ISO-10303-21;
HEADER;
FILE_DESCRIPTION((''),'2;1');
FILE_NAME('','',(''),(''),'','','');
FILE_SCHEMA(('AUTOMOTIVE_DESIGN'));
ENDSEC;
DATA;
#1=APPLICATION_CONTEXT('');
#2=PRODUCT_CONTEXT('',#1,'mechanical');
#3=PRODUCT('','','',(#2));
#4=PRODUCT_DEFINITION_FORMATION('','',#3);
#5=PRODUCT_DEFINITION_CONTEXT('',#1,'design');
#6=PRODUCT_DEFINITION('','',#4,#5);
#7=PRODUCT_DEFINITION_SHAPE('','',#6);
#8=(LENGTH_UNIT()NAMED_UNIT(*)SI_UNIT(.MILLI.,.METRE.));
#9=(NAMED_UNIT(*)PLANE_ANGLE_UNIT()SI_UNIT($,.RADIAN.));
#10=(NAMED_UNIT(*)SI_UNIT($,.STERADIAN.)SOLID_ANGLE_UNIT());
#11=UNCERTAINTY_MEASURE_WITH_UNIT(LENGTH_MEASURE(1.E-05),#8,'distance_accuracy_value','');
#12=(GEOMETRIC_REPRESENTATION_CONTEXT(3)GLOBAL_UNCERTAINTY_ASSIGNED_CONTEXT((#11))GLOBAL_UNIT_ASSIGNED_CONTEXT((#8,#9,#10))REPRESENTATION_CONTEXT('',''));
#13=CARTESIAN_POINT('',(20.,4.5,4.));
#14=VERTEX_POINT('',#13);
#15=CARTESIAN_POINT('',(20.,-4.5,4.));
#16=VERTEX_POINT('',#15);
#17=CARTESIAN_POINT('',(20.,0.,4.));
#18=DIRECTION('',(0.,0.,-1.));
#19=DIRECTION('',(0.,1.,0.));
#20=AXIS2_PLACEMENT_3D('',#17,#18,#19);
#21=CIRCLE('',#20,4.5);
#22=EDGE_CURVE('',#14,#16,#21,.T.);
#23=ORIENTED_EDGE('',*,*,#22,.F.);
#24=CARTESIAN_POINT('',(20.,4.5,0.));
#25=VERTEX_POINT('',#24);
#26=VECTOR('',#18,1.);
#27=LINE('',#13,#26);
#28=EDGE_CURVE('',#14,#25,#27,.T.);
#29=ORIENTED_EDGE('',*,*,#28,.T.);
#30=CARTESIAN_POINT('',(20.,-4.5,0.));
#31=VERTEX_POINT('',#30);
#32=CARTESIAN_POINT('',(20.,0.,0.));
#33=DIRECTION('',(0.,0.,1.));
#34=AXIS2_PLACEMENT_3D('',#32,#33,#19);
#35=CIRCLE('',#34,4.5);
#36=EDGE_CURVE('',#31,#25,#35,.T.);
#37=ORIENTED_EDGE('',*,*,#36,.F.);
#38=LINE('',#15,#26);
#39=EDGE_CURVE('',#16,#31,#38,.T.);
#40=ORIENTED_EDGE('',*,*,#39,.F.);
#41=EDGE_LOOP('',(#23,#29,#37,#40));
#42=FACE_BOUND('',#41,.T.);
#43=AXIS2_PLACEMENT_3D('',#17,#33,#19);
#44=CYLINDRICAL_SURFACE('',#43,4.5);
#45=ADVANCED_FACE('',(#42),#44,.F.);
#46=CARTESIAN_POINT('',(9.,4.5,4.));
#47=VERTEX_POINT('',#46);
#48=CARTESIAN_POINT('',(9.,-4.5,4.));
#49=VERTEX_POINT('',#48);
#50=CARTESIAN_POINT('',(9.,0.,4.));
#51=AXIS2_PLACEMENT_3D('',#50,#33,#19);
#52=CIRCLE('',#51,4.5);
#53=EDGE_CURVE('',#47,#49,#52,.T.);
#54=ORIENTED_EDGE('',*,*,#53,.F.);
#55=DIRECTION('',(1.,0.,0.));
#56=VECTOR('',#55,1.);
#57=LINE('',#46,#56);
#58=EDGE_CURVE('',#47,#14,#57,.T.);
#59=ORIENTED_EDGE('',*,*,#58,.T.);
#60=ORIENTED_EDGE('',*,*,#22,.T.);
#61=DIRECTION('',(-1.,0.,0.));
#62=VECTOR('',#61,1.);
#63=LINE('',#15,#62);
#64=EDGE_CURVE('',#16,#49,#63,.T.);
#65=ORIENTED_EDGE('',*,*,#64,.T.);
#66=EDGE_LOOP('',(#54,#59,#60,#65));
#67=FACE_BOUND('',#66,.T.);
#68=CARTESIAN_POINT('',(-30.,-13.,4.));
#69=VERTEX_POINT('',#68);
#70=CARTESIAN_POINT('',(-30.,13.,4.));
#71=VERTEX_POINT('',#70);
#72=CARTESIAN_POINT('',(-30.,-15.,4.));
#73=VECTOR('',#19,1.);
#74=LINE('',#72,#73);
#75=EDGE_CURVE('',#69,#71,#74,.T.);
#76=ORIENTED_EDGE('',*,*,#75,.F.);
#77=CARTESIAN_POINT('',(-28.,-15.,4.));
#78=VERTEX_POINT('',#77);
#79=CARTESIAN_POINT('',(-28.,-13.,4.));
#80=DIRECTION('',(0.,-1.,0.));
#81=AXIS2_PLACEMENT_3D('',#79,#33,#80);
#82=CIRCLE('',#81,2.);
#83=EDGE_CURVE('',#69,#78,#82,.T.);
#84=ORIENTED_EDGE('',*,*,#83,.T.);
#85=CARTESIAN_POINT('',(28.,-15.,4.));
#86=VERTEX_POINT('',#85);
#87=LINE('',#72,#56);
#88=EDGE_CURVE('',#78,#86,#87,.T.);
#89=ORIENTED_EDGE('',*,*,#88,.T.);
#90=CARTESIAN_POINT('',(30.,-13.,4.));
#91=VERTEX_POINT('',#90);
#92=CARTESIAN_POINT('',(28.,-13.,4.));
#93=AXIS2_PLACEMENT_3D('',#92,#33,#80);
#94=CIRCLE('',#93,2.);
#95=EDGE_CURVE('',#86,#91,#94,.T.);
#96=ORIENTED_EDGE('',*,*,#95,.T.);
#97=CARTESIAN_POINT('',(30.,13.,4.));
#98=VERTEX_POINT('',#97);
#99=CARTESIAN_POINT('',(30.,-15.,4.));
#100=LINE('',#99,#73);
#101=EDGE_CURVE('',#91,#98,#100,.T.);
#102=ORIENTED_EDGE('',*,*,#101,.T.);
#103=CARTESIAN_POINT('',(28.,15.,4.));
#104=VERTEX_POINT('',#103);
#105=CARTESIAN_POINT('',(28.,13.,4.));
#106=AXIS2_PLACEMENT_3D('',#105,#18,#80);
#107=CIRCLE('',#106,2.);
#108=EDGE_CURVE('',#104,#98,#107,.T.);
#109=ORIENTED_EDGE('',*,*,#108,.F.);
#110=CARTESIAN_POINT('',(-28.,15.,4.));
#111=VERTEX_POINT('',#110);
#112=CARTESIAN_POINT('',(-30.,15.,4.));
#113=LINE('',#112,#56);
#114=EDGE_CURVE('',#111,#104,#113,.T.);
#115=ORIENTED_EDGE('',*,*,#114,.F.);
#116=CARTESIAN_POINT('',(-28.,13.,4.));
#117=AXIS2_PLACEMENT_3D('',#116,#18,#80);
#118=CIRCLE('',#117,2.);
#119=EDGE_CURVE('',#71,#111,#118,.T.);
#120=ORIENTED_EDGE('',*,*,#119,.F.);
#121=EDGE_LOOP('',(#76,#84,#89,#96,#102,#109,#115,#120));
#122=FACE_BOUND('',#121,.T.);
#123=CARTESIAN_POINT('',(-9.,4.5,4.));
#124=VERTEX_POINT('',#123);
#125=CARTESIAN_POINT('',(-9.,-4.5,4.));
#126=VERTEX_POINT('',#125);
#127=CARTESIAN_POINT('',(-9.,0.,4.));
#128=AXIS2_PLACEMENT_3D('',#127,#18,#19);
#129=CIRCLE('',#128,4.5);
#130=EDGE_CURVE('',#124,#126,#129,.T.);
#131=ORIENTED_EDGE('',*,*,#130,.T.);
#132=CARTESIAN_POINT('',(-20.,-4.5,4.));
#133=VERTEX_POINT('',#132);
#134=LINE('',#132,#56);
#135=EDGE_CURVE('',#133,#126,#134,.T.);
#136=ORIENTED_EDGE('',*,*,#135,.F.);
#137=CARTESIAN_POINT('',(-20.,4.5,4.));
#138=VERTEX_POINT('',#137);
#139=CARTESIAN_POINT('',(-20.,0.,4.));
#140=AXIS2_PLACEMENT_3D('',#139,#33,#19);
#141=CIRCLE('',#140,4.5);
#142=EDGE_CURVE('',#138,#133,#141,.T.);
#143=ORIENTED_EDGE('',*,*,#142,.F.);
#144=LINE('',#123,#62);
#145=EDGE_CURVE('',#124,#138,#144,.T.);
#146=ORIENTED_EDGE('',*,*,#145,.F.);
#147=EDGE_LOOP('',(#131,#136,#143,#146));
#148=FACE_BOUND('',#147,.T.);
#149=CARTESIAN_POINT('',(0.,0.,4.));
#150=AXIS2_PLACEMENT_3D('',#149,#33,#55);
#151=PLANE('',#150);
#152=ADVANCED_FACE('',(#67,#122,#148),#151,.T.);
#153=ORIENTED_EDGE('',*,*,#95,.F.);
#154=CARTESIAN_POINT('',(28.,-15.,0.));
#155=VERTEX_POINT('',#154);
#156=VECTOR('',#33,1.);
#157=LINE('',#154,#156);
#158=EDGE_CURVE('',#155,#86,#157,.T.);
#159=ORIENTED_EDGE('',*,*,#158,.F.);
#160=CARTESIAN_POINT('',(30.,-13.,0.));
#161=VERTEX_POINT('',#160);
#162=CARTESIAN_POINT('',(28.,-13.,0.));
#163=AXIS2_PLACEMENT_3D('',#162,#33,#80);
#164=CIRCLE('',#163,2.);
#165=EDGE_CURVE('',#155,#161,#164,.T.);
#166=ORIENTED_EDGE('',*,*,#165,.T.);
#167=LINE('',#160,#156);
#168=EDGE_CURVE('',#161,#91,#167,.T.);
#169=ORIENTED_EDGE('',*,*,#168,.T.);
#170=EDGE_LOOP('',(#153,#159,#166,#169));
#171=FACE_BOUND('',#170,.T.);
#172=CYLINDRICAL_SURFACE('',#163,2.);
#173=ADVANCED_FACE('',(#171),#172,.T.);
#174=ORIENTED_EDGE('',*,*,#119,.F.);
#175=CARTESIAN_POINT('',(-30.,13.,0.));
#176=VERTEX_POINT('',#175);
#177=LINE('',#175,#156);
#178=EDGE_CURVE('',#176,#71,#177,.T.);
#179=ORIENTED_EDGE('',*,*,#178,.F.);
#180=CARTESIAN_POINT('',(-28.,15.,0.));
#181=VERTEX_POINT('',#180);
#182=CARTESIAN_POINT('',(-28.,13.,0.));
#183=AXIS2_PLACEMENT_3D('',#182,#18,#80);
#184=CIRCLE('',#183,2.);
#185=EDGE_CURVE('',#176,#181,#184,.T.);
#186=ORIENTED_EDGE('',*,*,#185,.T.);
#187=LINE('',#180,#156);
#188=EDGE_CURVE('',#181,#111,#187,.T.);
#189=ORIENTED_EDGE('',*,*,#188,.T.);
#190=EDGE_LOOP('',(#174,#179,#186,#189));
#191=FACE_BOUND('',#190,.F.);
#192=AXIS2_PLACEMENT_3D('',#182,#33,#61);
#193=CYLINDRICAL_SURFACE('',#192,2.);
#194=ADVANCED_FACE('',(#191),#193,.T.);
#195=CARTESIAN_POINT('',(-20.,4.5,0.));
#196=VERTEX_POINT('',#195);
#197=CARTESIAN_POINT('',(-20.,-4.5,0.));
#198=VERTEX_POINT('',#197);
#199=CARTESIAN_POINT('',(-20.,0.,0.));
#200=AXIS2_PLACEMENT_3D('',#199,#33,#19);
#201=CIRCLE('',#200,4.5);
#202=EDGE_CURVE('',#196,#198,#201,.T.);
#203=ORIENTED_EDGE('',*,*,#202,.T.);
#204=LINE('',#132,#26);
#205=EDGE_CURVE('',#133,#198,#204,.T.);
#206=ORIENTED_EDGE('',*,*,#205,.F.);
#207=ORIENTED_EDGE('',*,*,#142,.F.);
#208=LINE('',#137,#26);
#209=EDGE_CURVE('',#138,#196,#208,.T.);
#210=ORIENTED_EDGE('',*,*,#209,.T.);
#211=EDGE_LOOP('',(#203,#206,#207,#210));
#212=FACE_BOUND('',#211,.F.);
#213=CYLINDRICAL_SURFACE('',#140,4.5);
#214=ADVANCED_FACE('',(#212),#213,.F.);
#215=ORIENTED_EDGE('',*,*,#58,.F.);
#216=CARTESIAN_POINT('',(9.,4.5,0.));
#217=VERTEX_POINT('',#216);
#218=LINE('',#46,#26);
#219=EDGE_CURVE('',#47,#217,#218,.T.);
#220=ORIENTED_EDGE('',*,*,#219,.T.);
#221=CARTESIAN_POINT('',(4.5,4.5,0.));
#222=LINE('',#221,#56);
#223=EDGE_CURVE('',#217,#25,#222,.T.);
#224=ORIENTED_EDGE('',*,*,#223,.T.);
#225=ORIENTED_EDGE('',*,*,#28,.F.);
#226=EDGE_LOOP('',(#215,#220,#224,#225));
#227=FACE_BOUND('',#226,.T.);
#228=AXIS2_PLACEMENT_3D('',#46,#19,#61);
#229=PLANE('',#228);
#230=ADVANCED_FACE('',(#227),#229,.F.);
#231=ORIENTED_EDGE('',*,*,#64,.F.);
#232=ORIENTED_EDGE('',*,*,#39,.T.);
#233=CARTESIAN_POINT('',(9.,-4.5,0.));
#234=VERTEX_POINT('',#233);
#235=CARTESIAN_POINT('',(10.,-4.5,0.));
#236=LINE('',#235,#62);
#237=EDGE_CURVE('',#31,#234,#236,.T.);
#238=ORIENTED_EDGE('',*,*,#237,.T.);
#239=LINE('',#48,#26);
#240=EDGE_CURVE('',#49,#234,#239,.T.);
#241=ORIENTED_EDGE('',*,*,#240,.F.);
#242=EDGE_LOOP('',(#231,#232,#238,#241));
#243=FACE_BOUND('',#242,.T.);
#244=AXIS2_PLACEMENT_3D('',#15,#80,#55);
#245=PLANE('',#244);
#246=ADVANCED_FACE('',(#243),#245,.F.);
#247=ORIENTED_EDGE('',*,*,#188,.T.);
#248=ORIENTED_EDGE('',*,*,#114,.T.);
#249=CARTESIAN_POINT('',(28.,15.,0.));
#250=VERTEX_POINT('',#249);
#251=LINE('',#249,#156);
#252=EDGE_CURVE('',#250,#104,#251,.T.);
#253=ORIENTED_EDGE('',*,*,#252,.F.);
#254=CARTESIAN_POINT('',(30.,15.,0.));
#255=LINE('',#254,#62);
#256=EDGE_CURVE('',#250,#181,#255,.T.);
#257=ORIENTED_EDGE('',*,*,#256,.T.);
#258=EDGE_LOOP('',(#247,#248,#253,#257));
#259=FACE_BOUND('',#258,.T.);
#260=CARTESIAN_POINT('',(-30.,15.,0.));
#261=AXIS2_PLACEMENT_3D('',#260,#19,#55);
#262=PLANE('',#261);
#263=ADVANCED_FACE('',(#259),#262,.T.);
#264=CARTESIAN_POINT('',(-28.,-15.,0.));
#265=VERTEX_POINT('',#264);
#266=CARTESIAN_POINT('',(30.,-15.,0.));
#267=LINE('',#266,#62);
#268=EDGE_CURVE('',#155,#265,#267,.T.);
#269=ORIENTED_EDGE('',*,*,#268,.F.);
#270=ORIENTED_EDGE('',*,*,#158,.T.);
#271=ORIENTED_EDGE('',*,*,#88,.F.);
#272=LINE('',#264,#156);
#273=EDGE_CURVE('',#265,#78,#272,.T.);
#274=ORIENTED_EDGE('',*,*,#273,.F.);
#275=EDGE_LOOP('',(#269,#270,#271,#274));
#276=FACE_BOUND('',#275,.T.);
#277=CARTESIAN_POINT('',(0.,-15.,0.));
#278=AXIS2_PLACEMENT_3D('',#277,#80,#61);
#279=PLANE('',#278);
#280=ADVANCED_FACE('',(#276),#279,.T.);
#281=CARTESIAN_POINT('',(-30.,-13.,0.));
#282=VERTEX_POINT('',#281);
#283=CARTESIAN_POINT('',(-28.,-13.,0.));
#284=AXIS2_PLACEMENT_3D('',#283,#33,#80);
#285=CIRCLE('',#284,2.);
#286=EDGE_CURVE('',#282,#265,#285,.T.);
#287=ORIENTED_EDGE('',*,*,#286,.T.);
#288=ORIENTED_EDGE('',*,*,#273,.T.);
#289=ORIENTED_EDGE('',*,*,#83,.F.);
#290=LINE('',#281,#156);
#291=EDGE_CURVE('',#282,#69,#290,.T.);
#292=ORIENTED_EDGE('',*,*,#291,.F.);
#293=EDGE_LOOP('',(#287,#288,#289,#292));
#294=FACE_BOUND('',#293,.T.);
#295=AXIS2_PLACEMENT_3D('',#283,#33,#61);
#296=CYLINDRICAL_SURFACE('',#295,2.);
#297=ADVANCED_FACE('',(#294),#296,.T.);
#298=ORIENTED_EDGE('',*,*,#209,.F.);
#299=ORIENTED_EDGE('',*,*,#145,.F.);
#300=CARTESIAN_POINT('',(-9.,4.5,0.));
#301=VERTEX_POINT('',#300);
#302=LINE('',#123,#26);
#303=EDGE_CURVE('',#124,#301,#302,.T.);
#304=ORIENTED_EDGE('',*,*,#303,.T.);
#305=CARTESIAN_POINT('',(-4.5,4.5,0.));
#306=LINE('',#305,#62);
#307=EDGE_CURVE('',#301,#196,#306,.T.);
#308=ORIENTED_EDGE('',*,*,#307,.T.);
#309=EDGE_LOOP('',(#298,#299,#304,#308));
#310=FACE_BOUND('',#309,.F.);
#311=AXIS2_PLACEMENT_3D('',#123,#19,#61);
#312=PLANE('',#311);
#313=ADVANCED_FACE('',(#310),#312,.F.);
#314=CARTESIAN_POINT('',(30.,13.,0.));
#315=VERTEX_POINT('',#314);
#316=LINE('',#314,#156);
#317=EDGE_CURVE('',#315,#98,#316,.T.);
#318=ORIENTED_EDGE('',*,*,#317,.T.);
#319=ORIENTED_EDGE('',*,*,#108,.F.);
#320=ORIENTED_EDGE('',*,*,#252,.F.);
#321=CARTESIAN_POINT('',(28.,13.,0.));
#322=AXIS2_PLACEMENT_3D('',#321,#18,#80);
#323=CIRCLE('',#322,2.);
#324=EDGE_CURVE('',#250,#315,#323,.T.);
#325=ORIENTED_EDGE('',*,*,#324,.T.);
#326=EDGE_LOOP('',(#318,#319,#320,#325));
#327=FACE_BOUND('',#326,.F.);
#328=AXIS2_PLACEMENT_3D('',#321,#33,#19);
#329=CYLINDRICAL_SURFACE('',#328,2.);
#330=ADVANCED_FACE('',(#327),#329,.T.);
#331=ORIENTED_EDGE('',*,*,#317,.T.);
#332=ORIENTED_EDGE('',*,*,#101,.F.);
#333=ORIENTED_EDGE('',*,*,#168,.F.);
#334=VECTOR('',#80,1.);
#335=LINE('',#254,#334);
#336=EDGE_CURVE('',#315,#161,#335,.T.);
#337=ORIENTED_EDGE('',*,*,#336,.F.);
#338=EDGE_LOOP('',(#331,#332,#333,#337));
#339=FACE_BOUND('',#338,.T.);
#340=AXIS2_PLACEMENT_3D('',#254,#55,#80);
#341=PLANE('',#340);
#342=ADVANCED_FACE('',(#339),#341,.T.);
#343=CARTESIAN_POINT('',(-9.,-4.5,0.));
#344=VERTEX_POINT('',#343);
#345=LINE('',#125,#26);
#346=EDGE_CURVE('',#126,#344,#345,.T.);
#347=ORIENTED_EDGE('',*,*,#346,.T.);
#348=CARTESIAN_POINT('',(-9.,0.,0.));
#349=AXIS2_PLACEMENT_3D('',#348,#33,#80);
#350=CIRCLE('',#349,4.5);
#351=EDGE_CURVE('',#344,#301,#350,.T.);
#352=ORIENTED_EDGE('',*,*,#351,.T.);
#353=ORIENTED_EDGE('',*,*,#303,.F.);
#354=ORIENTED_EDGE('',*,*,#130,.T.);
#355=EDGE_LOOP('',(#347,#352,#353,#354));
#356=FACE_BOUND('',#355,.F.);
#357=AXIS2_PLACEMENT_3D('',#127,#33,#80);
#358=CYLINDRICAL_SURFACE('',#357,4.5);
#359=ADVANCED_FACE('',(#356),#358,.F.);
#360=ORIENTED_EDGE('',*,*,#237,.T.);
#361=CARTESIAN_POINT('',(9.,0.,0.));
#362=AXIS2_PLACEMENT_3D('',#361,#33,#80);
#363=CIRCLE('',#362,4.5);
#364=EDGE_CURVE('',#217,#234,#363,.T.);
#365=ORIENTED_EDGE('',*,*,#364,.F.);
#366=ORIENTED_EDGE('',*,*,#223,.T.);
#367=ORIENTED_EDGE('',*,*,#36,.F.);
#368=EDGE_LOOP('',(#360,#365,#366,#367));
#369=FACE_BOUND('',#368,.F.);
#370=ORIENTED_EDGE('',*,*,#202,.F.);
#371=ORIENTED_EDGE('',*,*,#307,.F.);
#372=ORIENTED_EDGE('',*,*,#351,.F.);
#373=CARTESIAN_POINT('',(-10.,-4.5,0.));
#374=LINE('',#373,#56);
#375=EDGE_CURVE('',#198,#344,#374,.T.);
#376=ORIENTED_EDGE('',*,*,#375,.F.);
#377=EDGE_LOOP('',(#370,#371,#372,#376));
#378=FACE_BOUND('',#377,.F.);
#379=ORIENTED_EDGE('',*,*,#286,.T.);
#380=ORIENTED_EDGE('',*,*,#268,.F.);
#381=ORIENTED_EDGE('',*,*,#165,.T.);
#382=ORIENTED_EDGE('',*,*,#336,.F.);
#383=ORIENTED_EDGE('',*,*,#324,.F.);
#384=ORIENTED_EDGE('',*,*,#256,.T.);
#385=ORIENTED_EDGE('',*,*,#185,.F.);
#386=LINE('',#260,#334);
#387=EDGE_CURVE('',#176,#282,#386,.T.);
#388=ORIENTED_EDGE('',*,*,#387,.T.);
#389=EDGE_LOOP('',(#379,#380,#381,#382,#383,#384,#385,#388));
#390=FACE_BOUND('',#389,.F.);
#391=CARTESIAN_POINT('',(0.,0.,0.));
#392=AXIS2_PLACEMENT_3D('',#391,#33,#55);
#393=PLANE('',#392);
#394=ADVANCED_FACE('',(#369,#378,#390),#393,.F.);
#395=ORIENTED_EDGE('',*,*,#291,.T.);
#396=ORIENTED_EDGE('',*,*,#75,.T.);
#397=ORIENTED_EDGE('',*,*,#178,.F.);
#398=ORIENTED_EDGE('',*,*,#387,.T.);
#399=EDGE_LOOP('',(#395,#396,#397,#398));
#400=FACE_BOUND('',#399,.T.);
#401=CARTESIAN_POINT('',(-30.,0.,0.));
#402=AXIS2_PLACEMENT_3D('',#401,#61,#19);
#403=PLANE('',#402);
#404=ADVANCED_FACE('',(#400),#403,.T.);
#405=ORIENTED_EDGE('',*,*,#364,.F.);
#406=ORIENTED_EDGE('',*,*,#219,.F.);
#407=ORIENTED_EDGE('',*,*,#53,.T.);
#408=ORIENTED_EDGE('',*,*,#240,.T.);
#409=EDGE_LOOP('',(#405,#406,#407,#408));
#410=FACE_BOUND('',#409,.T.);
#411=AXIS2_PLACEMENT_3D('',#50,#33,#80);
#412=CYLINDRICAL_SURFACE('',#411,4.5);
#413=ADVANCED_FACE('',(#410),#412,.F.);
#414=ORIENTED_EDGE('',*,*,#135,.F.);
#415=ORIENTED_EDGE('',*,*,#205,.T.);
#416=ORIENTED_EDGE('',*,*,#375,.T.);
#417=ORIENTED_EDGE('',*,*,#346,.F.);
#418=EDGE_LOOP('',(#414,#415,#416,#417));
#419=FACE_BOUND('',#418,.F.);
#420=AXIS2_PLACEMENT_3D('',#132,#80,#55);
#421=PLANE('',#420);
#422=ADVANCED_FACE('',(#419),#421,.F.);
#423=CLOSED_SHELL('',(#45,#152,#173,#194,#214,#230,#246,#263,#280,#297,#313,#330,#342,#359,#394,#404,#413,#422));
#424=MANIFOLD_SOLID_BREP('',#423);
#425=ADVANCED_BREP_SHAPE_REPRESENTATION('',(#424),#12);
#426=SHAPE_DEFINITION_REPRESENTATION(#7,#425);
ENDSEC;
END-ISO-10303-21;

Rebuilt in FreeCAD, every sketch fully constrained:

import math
import FreeCAD as App
import Part
import Sketcher

V = App.Vector


def edges_at(feature, points):
    """Names of the edges that pass closest to the given points."""
    edges = feature.Shape.Edges
    near = lambda p: min(range(len(edges)), key=lambda i: edges[i].distToShape(Part.Vertex(*p))[0])
    return sorted({f"Edge{near(p) + 1}" for p in points})


def add_polygon(sketch, points):
    """Adds a closed chain of lines whose ends are joined by coincident constraints."""
    first, n = sketch.GeometryCount, len(points)
    for a, b in zip(points, points[1:] + points[:1]):
        sketch.addGeometry(Part.LineSegment(App.Vector(*a, 0), App.Vector(*b, 0)), False)
    for i in range(n):
        sketch.addConstraint(Sketcher.Constraint("Coincident", first + i, 2, first + (i + 1) % n, 1))

doc = App.newDocument("Part")
params = doc.addObject("Spreadsheet::Sheet", "Params")
for row, (alias, value) in enumerate([
    ("sketch1_width", "60 mm"),
    ("sketch1_height", "30 mm"),
    ("pad1_length", "4 mm"),
    ("sketch2_radius", "4.5 mm"),
    ("sketch2_width", "11 mm"),
    ("fillet_radius", "2 mm"),
], start=1):
    params.set(f"A{row}", alias)
    params.set(f"B{row}", "=" + value)
    params.setAlias(f"B{row}", alias)

body = doc.addObject("PartDesign::Body", "Body")

# Sketch on XY plane
sketch1 = body.newObject("Sketcher::SketchObject", "Sketch")
sketch1.AttachmentSupport = (doc.getObject("XY_Plane"), [""])
sketch1.MapMode = "FlatFace"
add_polygon(sketch1, [(-30, 15), (-30, -15), (30, -15), (30, 15)])  # lines 0-3
sketch1.addConstraint([
    Sketcher.Constraint("Vertical", 0),
    Sketcher.Constraint("Horizontal", 1),
    Sketcher.Constraint("Vertical", 2),
    Sketcher.Constraint("Horizontal", 3),
    Sketcher.Constraint("Symmetric", 0, 2, 2, 2, -1, 1),
    Sketcher.Constraint("DistanceX", 1, 1, 1, 2, 60.0),
    Sketcher.Constraint("DistanceY", 0, 2, 0, 1, 30.0),
])
sketch1.setExpression("Constraints[9]", "Params.sketch1_width")
sketch1.setExpression("Constraints[10]", "Params.sketch1_height")
pad1 = body.newObject("PartDesign::Pad", "Pad")
pad1.Profile = sketch1
pad1.setExpression("Length", "Params.pad1_length")

# Sketch on XY plane
sketch2 = body.newObject("Sketcher::SketchObject", "Sketch001")
sketch2.AttachmentSupport = (doc.getObject("XY_Plane"), [""])
sketch2.MapMode = "FlatFace"
sketch2.AttachmentOffset = App.Placement(V(0, 0, 4), App.Rotation())
sketch2.addGeometry([
    Part.ArcOfCircle(Part.Circle(V(-9, 0, 0), V(0, 0, 1), 4.5), math.radians(-90), math.radians(90)),
    Part.LineSegment(V(-9, 4.5, 0), V(-20, 4.5, 0)),
    Part.ArcOfCircle(Part.Circle(V(-20, 0, 0), V(0, 0, 1), 4.5), math.radians(90), math.radians(270)),
    Part.LineSegment(V(-20, -4.5, 0), V(-9, -4.5, 0)),
], False)
sketch2.addConstraint([
    Sketcher.Constraint("Tangent", 0, 2, 1, 1),
    Sketcher.Constraint("Tangent", 1, 2, 2, 1),
    Sketcher.Constraint("Tangent", 2, 2, 3, 1),
    Sketcher.Constraint("Tangent", 3, 2, 0, 1),
    Sketcher.Constraint("Horizontal", 1),
    Sketcher.Constraint("Horizontal", 3),
    Sketcher.Constraint("PointOnObject", 0, 3, -1),
    Sketcher.Constraint("Radius", 0, 4.5),
    Sketcher.Constraint("DistanceX", 1, 2, 1, 1, 11.0),
    Sketcher.Constraint("DistanceX", 0, 3, -1, 1, 9.0),
])
sketch2.setExpression("Constraints[7]", "Params.sketch2_radius")
sketch2.setExpression("Constraints[8]", "Params.sketch2_width")
pocket1 = body.newObject("PartDesign::Pocket", "Pocket")
pocket1.Profile = sketch2
pocket1.Type = "ThroughAll"
doc.recompute()

mirrored = body.newObject("PartDesign::Mirrored", "Mirrored")
mirrored.Originals = [pocket1]
mirrored.MirrorPlane = (doc.getObject("YZ_Plane"), [""])
body.Tip = mirrored
doc.recompute()

fillet = body.newObject("PartDesign::Fillet", "Fillet")
fillet.Base = (mirrored, edges_at(mirrored, [
    (-30, 15, 2),
    (30, 15, 2),
    (30, -15, 2),
    (-30, -15, 2),
]))
fillet.setExpression("Radius", "Params.fillet_radius")

doc.recompute()
